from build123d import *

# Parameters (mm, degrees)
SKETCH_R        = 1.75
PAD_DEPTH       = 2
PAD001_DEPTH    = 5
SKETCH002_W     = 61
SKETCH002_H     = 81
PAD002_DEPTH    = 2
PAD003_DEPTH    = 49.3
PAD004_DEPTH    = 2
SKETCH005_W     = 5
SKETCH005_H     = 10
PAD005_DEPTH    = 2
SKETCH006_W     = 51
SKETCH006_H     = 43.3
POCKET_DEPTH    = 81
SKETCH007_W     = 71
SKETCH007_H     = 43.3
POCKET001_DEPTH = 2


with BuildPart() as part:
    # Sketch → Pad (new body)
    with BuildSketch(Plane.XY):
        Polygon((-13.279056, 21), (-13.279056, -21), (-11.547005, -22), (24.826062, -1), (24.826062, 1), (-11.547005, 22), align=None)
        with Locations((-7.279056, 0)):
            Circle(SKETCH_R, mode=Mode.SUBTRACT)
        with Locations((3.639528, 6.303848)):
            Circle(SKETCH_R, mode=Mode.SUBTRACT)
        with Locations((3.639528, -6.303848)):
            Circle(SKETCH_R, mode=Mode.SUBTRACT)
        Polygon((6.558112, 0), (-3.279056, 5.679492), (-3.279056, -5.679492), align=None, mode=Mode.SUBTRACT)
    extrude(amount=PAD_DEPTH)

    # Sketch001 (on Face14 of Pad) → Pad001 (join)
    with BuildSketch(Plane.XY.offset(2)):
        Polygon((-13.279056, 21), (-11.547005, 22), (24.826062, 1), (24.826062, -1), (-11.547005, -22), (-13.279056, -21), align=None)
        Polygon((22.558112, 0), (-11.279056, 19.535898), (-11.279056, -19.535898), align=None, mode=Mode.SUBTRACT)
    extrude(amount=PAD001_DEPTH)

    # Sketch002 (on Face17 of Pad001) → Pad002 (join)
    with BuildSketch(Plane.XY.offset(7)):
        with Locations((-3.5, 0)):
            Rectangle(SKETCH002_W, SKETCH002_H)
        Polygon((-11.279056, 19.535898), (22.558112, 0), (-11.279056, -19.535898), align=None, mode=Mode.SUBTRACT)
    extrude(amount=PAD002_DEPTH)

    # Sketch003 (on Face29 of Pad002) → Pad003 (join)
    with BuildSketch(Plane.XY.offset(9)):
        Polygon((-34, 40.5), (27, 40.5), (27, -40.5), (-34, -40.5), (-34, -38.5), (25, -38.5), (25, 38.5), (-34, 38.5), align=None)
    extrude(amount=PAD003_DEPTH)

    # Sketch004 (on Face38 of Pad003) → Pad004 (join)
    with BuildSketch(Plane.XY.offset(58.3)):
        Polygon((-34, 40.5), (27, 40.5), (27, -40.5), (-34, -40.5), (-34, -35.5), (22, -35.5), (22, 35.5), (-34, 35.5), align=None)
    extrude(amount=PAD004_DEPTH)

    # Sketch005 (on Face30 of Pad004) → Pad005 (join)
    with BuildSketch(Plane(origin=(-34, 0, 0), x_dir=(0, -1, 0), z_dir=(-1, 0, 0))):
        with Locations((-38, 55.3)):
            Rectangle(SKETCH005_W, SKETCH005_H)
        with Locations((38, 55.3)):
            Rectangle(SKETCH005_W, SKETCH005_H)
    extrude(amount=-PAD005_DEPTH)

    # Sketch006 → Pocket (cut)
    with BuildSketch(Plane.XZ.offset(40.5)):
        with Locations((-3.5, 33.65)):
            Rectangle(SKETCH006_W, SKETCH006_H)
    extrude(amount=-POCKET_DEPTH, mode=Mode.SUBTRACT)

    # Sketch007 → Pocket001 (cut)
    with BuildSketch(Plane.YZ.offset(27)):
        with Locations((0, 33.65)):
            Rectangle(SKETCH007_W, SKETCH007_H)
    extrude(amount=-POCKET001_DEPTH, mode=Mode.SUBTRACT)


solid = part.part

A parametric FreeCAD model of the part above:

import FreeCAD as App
import Part
import Sketcher
Q = App.Units.Quantity

doc = App.newDocument("Part")
body = doc.addObject("PartDesign::Body", "Body")

sketch1 = doc.addObject("Sketcher::SketchObject", "Sketch")
body.addObject(sketch1)
sketch1.AttachmentSupport = (doc.XY_Plane, [""])
sketch1.MapMode = "FlatFace"
sketch1.addGeometry([
    Part.LineSegment(App.Vector(-13.3, 21, 0), App.Vector(-13.3, -21, 0)),
    Part.LineSegment(App.Vector(-13.3, -21, 0), App.Vector(-11.5, -22, 0)),
    Part.LineSegment(App.Vector(-11.5, -22, 0), App.Vector(24.8, -1, 0)),
    Part.LineSegment(App.Vector(24.8, -1, 0), App.Vector(24.8, 1, 0)),
    Part.LineSegment(App.Vector(24.8, 1, 0), App.Vector(-11.5, 22, 0)),
    Part.LineSegment(App.Vector(-11.5, 22, 0), App.Vector(-13.3, 21, 0)),
    Part.Circle(App.Vector(3.6, -6.3, 0), App.Vector(0, 0, 1), 1.8),
    Part.Circle(App.Vector(-7.3, 0, 0), App.Vector(0, 0, 1), 1.8),
    Part.LineSegment(App.Vector(-3.3, 5.7, 0), App.Vector(6.6, 0, 0)),
    Part.LineSegment(App.Vector(6.6, 0, 0), App.Vector(-3.3, -5.7, 0)),
    Part.LineSegment(App.Vector(-3.3, -5.7, 0), App.Vector(-3.3, 5.7, 0)),
    Part.Circle(App.Vector(3.6, 6.3, 0), App.Vector(0, 0, 1), 1.8),
], False)
sketch1.addConstraint([
    Sketcher.Constraint("Coincident", 0, 2, 1, 1),
    Sketcher.Constraint("Coincident", 1, 2, 2, 1),
    Sketcher.Constraint("Coincident", 2, 2, 3, 1),
    Sketcher.Constraint("Coincident", 3, 2, 4, 1),
    Sketcher.Constraint("Coincident", 4, 2, 5, 1),
    Sketcher.Constraint("Coincident", 5, 2, 0, 1),
    Sketcher.Constraint("Coincident", 8, 2, 9, 1),
    Sketcher.Constraint("Coincident", 9, 2, 10, 1),
    Sketcher.Constraint("Coincident", 10, 2, 8, 1),
    Sketcher.Constraint("Vertical", 0),
    Sketcher.Constraint("Vertical", 3),
    Sketcher.Constraint("Vertical", 10),
    Sketcher.Constraint("Equal", 6, 7),
    Sketcher.Constraint("Equal", 7, 11),
    Sketcher.Constraint("Symmetric", 6, 3, 11, 3, -1),
    Sketcher.Constraint("Symmetric", 1, 2, 4, 2, -1),
    Sketcher.Constraint("PointOnObject", 7, 3, -1),
    Sketcher.Constraint("PointOnObject", 8, 2, -1),
    Sketcher.Constraint("Parallel", 1, 4),
    Sketcher.Constraint("Parallel", 2, 5),
    Sketcher.Constraint("Parallel", 4, 8),
    Sketcher.Constraint("Parallel", 5, 9),
    Sketcher.Constraint("Equal", 2, 4),
    Sketcher.Constraint("Diameter", 6, Q("3.5 mm")),
    Sketcher.Constraint("DistanceY", 0, 2, 0, 1, Q("42 mm")),
    Sketcher.Constraint("DistanceY", 3, 1, 3, 2, Q("2 mm")),
    Sketcher.Constraint("Angle", 1, Q("-29.999997 deg")),
    Sketcher.Constraint("Distance", 1, Q("2 mm")),
    Sketcher.Constraint("DistanceX", 0, 2, 7, 3, Q("6 mm")),
    Sketcher.Constraint("DistanceX", 7, 3, 9, 2, Q("4 mm")),
    Sketcher.Constraint("DistanceY", 10, 1, 10, 2, Q("11.358984 mm")),
    Sketcher.Constraint("DistanceY", 6, 3, -1, 1, Q("6.303848 mm")),
    Sketcher.Constraint("DistanceX", -1, 1, 6, 3, Q("3.639528 mm")),
    Sketcher.Constraint("DistanceX", 7, 3, -1, 1, Q("7.279056 mm")),
])
pad1 = doc.addObject("PartDesign::Pad", "Pad")
body.addObject(pad1)
pad1.Profile = sketch1
pad1.Length = 2

sketch2 = doc.addObject("Sketcher::SketchObject", "Sketch001")
body.addObject(sketch2)
sketch2.AttachmentSupport = (doc.XY_Plane, [""])
sketch2.MapMode = "FlatFace"
sketch2.AttachmentOffset = App.Placement(App.Vector(0, 0, 2), App.Rotation())
sketch2.addGeometry([
    Part.LineSegment(App.Vector(-11.5, 22, 0), App.Vector(-13.3, 21, 0)),
    Part.LineSegment(App.Vector(-13.3, 21, 0), App.Vector(-13.3, -21, 0)),
    Part.LineSegment(App.Vector(-13.3, -21, 0), App.Vector(-11.5, -22, 0)),
    Part.LineSegment(App.Vector(-11.5, -22, 0), App.Vector(24.8, -1, 0)),
    Part.LineSegment(App.Vector(24.8, -1, 0), App.Vector(24.8, 1, 0)),
    Part.LineSegment(App.Vector(24.8, 1, 0), App.Vector(-11.5, 22, 0)),
    Part.LineSegment(App.Vector(22.6, 0, 0), App.Vector(-11.3, -19.5, 0)),
    Part.LineSegment(App.Vector(-11.3, -19.5, 0), App.Vector(-11.3, 19.5, 0)),
    Part.LineSegment(App.Vector(-11.3, 19.5, 0), App.Vector(22.6, 0, 0)),
], False)
sketch2.addConstraint([
    Sketcher.Constraint("Coincident", 0, 2, 1, 1),
    Sketcher.Constraint("Coincident", 1, 2, 2, 1),
    Sketcher.Constraint("Coincident", 2, 2, 3, 1),
    Sketcher.Constraint("Coincident", 3, 2, 4, 1),
    Sketcher.Constraint("Coincident", 4, 2, 5, 1),
    Sketcher.Constraint("Coincident", 5, 2, 0, 1),
    Sketcher.Constraint("Coincident", 6, 2, 7, 1),
    Sketcher.Constraint("Coincident", 7, 2, 8, 1),
    Sketcher.Constraint("Coincident", 8, 2, 6, 1),
    Sketcher.Constraint("Vertical", 1),
    Sketcher.Constraint("Vertical", 4),
    Sketcher.Constraint("Vertical", 7),
    Sketcher.Constraint("Symmetric", 2, 2, 5, 2, -1),
    Sketcher.Constraint("PointOnObject", 8, 2, -1),
    Sketcher.Constraint("Parallel", 0, 3),
    Sketcher.Constraint("Parallel", 2, 5),
    Sketcher.Constraint("Parallel", 3, 6),
    Sketcher.Constraint("Parallel", 5, 8),
    Sketcher.Constraint("Equal", 0, 2),
    Sketcher.Constraint("DistanceY", 1, 2, 1, 1, Q("42 mm")),
    Sketcher.Constraint("DistanceY", 4, 1, 4, 2, Q("2 mm")),
    Sketcher.Constraint("Angle", 0, Q("-150.000003 deg")),
    Sketcher.Constraint("Distance", 0, Q("2 mm")),
    Sketcher.Constraint("DistanceX", 1, 2, 6, 2, Q("2 mm")),
    Sketcher.Constraint("DistanceY", 6, 2, 0, 2, Q("40.535898 mm")),
    Sketcher.Constraint("DistanceX", 0, 2, -1, 1, Q("13.279056 mm")),
])
pad2 = doc.addObject("PartDesign::Pad", "Pad001")
body.addObject(pad2)
pad2.Profile = sketch2
pad2.Length = 5

sketch3 = doc.addObject("Sketcher::SketchObject", "Sketch002")
body.addObject(sketch3)
sketch3.AttachmentSupport = (doc.XY_Plane, [""])
sketch3.MapMode = "FlatFace"
sketch3.AttachmentOffset = App.Placement(App.Vector(0, 0, 7), App.Rotation())
sketch3.addGeometry([
    Part.LineSegment(App.Vector(-34, 40, 0), App.Vector(-34, -40, 0)),
    Part.LineSegment(App.Vector(-34, -40, 0), App.Vector(27, -40, 0)),
    Part.LineSegment(App.Vector(27, -40, 0), App.Vector(27, 40, 0)),
    Part.LineSegment(App.Vector(27, 40, 0), App.Vector(-34, 40, 0)),
    Part.LineSegment(App.Vector(-11, -20, 0), App.Vector(-11, 20, 0)),
    Part.LineSegment(App.Vector(-11, 20, 0), App.Vector(23, 0, 0)),
    Part.LineSegment(App.Vector(23, 0, 0), App.Vector(-11, -20, 0)),
], False)
sketch3.addConstraint([
    Sketcher.Constraint("Coincident", 0, 2, 1, 1),
    Sketcher.Constraint("Coincident", 1, 2, 2, 1),
    Sketcher.Constraint("Coincident", 2, 2, 3, 1),
    Sketcher.Constraint("Coincident", 3, 2, 0, 1),
    Sketcher.Constraint("Coincident", 4, 2, 5, 1),
    Sketcher.Constraint("Coincident", 5, 2, 6, 1),
    Sketcher.Constraint("Coincident", 6, 2, 4, 1),
    Sketcher.Constraint("Vertical", 0),
    Sketcher.Constraint("Horizontal", 1),
    Sketcher.Constraint("Vertical", 2),
    Sketcher.Constraint("Horizontal", 3),
    Sketcher.Constraint("Vertical", 4),
    Sketcher.Constraint("PointOnObject", 5, 2, -1),
    Sketcher.Constraint("Equal", 5, 6),
    Sketcher.Constraint("DistanceX", 1, 1, 1, 2, Q("61 mm")),
    Sketcher.Constraint("DistanceY", 0, 2, 0, 1, Q("81 mm")),
    Sketcher.Constraint("Angle", 5, Q("-30 deg")),
    Sketcher.Constraint("DistanceX", 0, 2, -1, 1, Q("34 mm")),
    Sketcher.Constraint("DistanceY", 0, 2, -1, 1, Q("40.5 mm")),
    Sketcher.Constraint("DistanceY", 0, 2, 4, 2, Q("60.035898 mm")),
    Sketcher.Constraint("DistanceX", 4, 2, -1, 1, Q("11.279056 mm")),
])
pad3 = doc.addObject("PartDesign::Pad", "Pad002")
body.addObject(pad3)
pad3.Profile = sketch3
pad3.Length = 2

sketch4 = doc.addObject("Sketcher::SketchObject", "Sketch003")
body.addObject(sketch4)
sketch4.AttachmentSupport = (doc.XY_Plane, [""])
sketch4.MapMode = "FlatFace"
sketch4.AttachmentOffset = App.Placement(App.Vector(0, 0, 9), App.Rotation())
sketch4.addGeometry([
    Part.LineSegment(App.Vector(27, 40.5, 0), App.Vector(-34, 40.5, 0)),
    Part.LineSegment(App.Vector(-34, 40.5, 0), App.Vector(-34, 38.5, 0)),
    Part.LineSegment(App.Vector(-34, 38.5, 0), App.Vector(25, 38.5, 0)),
    Part.LineSegment(App.Vector(25, 38.5, 0), App.Vector(25, -38.5, 0)),
    Part.LineSegment(App.Vector(25, -38.5, 0), App.Vector(-34, -38.5, 0)),
    Part.LineSegment(App.Vector(-34, -38.5, 0), App.Vector(-34, -40.5, 0)),
    Part.LineSegment(App.Vector(-34, -40.5, 0), App.Vector(27, -40.5, 0)),
    Part.LineSegment(App.Vector(27, -40.5, 0), App.Vector(27, 40.5, 0)),
], False)
sketch4.addConstraint([
    Sketcher.Constraint("Coincident", 0, 2, 1, 1),
    Sketcher.Constraint("Coincident", 1, 2, 2, 1),
    Sketcher.Constraint("Coincident", 2, 2, 3, 1),
    Sketcher.Constraint("Coincident", 3, 2, 4, 1),
    Sketcher.Constraint("Coincident", 4, 2, 5, 1),
    Sketcher.Constraint("Coincident", 5, 2, 6, 1),
    Sketcher.Constraint("Coincident", 6, 2, 7, 1),
    Sketcher.Constraint("Coincident", 7, 2, 0, 1),
    Sketcher.Constraint("Horizontal", 0),
    Sketcher.Constraint("Vertical", 1),
    Sketcher.Constraint("Horizontal", 2),
    Sketcher.Constraint("Vertical", 3),
    Sketcher.Constraint("Horizontal", 4),
    Sketcher.Constraint("Vertical", 5),
    Sketcher.Constraint("Horizontal", 6),
    Sketcher.Constraint("Vertical", 7),
    Sketcher.Constraint("Symmetric", 1, 2, 4, 2, -1),
    Sketcher.Constraint("Equal", 1, 5),
    Sketcher.Constraint("DistanceX", 0, 2, 0, 1, Q("61 mm")),
    Sketcher.Constraint("DistanceX", 2, 1, 2, 2, Q("59 mm")),
    Sketcher.Constraint("DistanceY", 1, 2, 1, 1, Q("2 mm")),
    Sketcher.Constraint("DistanceY", 3, 2, 3, 1, Q("77 mm")),
    Sketcher.Constraint("DistanceX", 0, 2, -1, 1, Q("34 mm")),
])
pad4 = doc.addObject("PartDesign::Pad", "Pad003")
body.addObject(pad4)
pad4.Profile = sketch4
pad4.Length = 49.3

sketch5 = doc.addObject("Sketcher::SketchObject", "Sketch004")
body.addObject(sketch5)
sketch5.AttachmentSupport = (doc.XY_Plane, [""])
sketch5.MapMode = "FlatFace"
sketch5.AttachmentOffset = App.Placement(App.Vector(0, 0, 58.3), App.Rotation())
sketch5.addGeometry([
    Part.LineSegment(App.Vector(27, 40, 0), App.Vector(-34, 40, 0)),
    Part.LineSegment(App.Vector(-34, 40, 0), App.Vector(-34, 36, 0)),
    Part.LineSegment(App.Vector(-34, 36, 0), App.Vector(22, 36, 0)),
    Part.LineSegment(App.Vector(22, 36, 0), App.Vector(22, -36, 0)),
    Part.LineSegment(App.Vector(22, -36, 0), App.Vector(-34, -36, 0)),
    Part.LineSegment(App.Vector(-34, -36, 0), App.Vector(-34, -40, 0)),
    Part.LineSegment(App.Vector(-34, -40, 0), App.Vector(27, -40, 0)),
    Part.LineSegment(App.Vector(27, -40, 0), App.Vector(27, 40, 0)),
], False)
sketch5.addConstraint([
    Sketcher.Constraint("Coincident", 0, 2, 1, 1),
    Sketcher.Constraint("Coincident", 1, 2, 2, 1),
    Sketcher.Constraint("Coincident", 2, 2, 3, 1),
    Sketcher.Constraint("Coincident", 3, 2, 4, 1),
    Sketcher.Constraint("Coincident", 4, 2, 5, 1),
    Sketcher.Constraint("Coincident", 5, 2, 6, 1),
    Sketcher.Constraint("Coincident", 6, 2, 7, 1),
    Sketcher.Constraint("Coincident", 7, 2, 0, 1),
    Sketcher.Constraint("Horizontal", 0),
    Sketcher.Constraint("Vertical", 1),
    Sketcher.Constraint("Horizontal", 2),
    Sketcher.Constraint("Vertical", 3),
    Sketcher.Constraint("Horizontal", 4),
    Sketcher.Constraint("Vertical", 5),
    Sketcher.Constraint("Horizontal", 6),
    Sketcher.Constraint("Vertical", 7),
    Sketcher.Constraint("Symmetric", 1, 2, 4, 2, -1),
    Sketcher.Constraint("Equal", 1, 5),
    Sketcher.Constraint("DistanceX", 0, 2, 0, 1, Q("61 mm")),
    Sketcher.Constraint("DistanceX", 2, 1, 2, 2, Q("56 mm")),
    Sketcher.Constraint("DistanceY", 1, 2, 1, 1, Q("5 mm")),
    Sketcher.Constraint("DistanceY", 3, 2, 3, 1, Q("71 mm")),
    Sketcher.Constraint("DistanceX", 0, 2, -1, 1, Q("34 mm")),
])
pad5 = doc.addObject("PartDesign::Pad", "Pad004")
body.addObject(pad5)
pad5.Profile = sketch5
pad5.Length = 2

sketch6 = doc.addObject("Sketcher::SketchObject", "Sketch005")
body.addObject(sketch6)
sketch6.AttachmentSupport = (doc.YZ_Plane, [""])
sketch6.MapMode = "FlatFace"
sketch6.AttachmentOffset = App.Placement(App.Vector(0, 0, -34), App.Rotation())
sketch6.addGeometry([
    Part.LineSegment(App.Vector(40, 60, 0), App.Vector(40, 50, 0)),
    Part.LineSegment(App.Vector(40, 50, 0), App.Vector(36, 50, 0)),
    Part.LineSegment(App.Vector(36, 50, 0), App.Vector(36, 60, 0)),
    Part.LineSegment(App.Vector(36, 60, 0), App.Vector(40, 60, 0)),
    Part.LineSegment(App.Vector(-36, 60, 0), App.Vector(-36, 50, 0)),
    Part.LineSegment(App.Vector(-36, 50, 0), App.Vector(-40, 50, 0)),
    Part.LineSegment(App.Vector(-40, 50, 0), App.Vector(-40, 60, 0)),
    Part.LineSegment(App.Vector(-40, 60, 0), App.Vector(-36, 60, 0)),
], False)
sketch6.addConstraint([
    Sketcher.Constraint("Coincident", 0, 2, 1, 1),
    Sketcher.Constraint("Coincident", 1, 2, 2, 1),
    Sketcher.Constraint("Coincident", 2, 2, 3, 1),
    Sketcher.Constraint("Coincident", 3, 2, 0, 1),
    Sketcher.Constraint("Coincident", 4, 2, 5, 1),
    Sketcher.Constraint("Coincident", 5, 2, 6, 1),
    Sketcher.Constraint("Coincident", 6, 2, 7, 1),
    Sketcher.Constraint("Coincident", 7, 2, 4, 1),
    Sketcher.Constraint("Vertical", 0),
    Sketcher.Constraint("Horizontal", 1),
    Sketcher.Constraint("Vertical", 2),
    Sketcher.Constraint("Horizontal", 3),
    Sketcher.Constraint("Vertical", 4),
    Sketcher.Constraint("Horizontal", 5),
    Sketcher.Constraint("Vertical", 6),
    Sketcher.Constraint("Horizontal", 7),
    Sketcher.Constraint("Symmetric", 1, 2, 4, 2, -2),
    Sketcher.Constraint("Symmetric", 3, 2, 6, 2, -2),
    Sketcher.Constraint("DistanceX", 1, 2, 1, 1, Q("5 mm")),
    Sketcher.Constraint("DistanceY", 0, 2, 0, 1, Q("10 mm")),
    Sketcher.Constraint("DistanceX", 4, 2, 1, 2, Q("71 mm")),
    Sketcher.Constraint("DistanceY", -1, 1, 0, 2, Q("50.3 mm")),
])
pad6 = doc.addObject("PartDesign::Pad", "Pad005")
body.addObject(pad6)
pad6.Profile = sketch6
pad6.Length = 2

sketch7 = doc.addObject("Sketcher::SketchObject", "Sketch006")
body.addObject(sketch7)
sketch7.AttachmentSupport = (doc.XZ_Plane, [""])
sketch7.MapMode = "FlatFace"
sketch7.AttachmentOffset = App.Placement(App.Vector(0, 0, 40.5), App.Rotation())
sketch7.addGeometry([
    Part.LineSegment(App.Vector(-29, 55, 0), App.Vector(-29, 12, 0)),
    Part.LineSegment(App.Vector(-29, 12, 0), App.Vector(22, 12, 0)),
    Part.LineSegment(App.Vector(22, 12, 0), App.Vector(22, 55, 0)),
    Part.LineSegment(App.Vector(22, 55, 0), App.Vector(-29, 55, 0)),
], False)
sketch7.addConstraint([
    Sketcher.Constraint("Coincident", 0, 2, 1, 1),
    Sketcher.Constraint("Coincident", 1, 2, 2, 1),
    Sketcher.Constraint("Coincident", 2, 2, 3, 1),
    Sketcher.Constraint("Coincident", 3, 2, 0, 1),
    Sketcher.Constraint("Vertical", 0),
    Sketcher.Constraint("Horizontal", 1),
    Sketcher.Constraint("Vertical", 2),
    Sketcher.Constraint("Horizontal", 3),
    Sketcher.Constraint("DistanceX", 1, 1, 1, 2, Q("51 mm")),
    Sketcher.Constraint("DistanceY", 0, 2, 0, 1, Q("43.3 mm")),
    Sketcher.Constraint("DistanceX", 0, 2, -1, 1, Q("29 mm")),
    Sketcher.Constraint("DistanceY", -1, 1, 0, 2, Q("12 mm")),
])
pocket1 = doc.addObject("PartDesign::Pocket", "Pocket")
body.addObject(pocket1)
pocket1.Profile = sketch7
pocket1.Length = 81

sketch8 = doc.addObject("Sketcher::SketchObject", "Sketch007")
body.addObject(sketch8)
sketch8.AttachmentSupport = (doc.YZ_Plane, [""])
sketch8.MapMode = "FlatFace"
sketch8.AttachmentOffset = App.Placement(App.Vector(0, 0, 27), App.Rotation())
sketch8.addGeometry([
    Part.LineSegment(App.Vector(-36, 55, 0), App.Vector(-36, 12, 0)),
    Part.LineSegment(App.Vector(-36, 12, 0), App.Vector(36, 12, 0)),
    Part.LineSegment(App.Vector(36, 12, 0), App.Vector(36, 55, 0)),
    Part.LineSegment(App.Vector(36, 55, 0), App.Vector(-36, 55, 0)),
], False)
sketch8.addConstraint([
    Sketcher.Constraint("Coincident", 0, 2, 1, 1),
    Sketcher.Constraint("Coincident", 1, 2, 2, 1),
    Sketcher.Constraint("Coincident", 2, 2, 3, 1),
    Sketcher.Constraint("Coincident", 3, 2, 0, 1),
    Sketcher.Constraint("Vertical", 0),
    Sketcher.Constraint("Horizontal", 1),
    Sketcher.Constraint("Vertical", 2),
    Sketcher.Constraint("Horizontal", 3),
    Sketcher.Constraint("DistanceX", 1, 1, 1, 2, Q("71 mm")),
    Sketcher.Constraint("DistanceY", 0, 2, 0, 1, Q("43.3 mm")),
    Sketcher.Constraint("DistanceY", -1, 1, 0, 2, Q("12 mm")),
    Sketcher.Constraint("DistanceX", 0, 2, -1, 1, Q("35.5 mm")),
])
pocket2 = doc.addObject("PartDesign::Pocket", "Pocket001")
body.addObject(pocket2)
pocket2.Profile = sketch8
pocket2.Length = 2

doc.recompute()
